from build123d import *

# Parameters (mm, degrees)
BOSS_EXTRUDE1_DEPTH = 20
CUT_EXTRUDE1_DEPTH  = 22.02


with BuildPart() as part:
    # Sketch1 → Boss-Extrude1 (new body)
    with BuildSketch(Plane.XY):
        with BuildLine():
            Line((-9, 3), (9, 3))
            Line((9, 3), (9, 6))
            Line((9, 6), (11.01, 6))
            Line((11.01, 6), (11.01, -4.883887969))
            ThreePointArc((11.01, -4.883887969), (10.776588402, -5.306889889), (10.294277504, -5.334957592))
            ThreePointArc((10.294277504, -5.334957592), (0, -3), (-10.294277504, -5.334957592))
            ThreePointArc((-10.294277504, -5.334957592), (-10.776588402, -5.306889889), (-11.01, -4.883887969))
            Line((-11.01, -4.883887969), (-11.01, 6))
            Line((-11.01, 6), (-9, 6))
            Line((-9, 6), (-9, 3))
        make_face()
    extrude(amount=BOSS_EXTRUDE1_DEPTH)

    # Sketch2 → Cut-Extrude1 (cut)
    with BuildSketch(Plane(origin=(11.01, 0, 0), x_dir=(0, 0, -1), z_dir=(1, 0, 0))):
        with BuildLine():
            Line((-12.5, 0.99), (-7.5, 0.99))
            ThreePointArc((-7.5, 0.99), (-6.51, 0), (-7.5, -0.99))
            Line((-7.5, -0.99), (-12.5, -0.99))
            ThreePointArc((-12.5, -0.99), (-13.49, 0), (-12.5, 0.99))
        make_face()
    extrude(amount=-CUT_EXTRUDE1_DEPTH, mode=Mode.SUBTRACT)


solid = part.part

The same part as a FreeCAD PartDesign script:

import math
import FreeCAD as App
import Part
import Sketcher

V = App.Vector

doc = App.newDocument("Part")
params = doc.addObject("Spreadsheet::Sheet", "Params")
for row, (alias, value) in enumerate([
    ("sketch1_radius", "0.5 mm"),
    ("sketch1_width", "18 mm"),
    ("sketch1_height", "3 mm"),
    ("sketch1_radius2", "23.86 mm"),
    ("sketch1_width2", "2.01 mm"),
    ("pad1_length", "20 mm"),
    ("sketch2_height", "5 mm"),
    ("sketch2_radius", "0.99 mm"),
    ("pocket1_length", "22.02 mm"),
], start=1):
    params.set(f"A{row}", alias)
    params.set(f"B{row}", "=" + value)
    params.setAlias(f"B{row}", alias)

body = doc.addObject("PartDesign::Body", "Body")

sketch1 = doc.addObject("Sketcher::SketchObject", "Sketch")
body.addObject(sketch1)
sketch1.AttachmentSupport = (doc.XY_Plane, [""])
sketch1.MapMode = "FlatFace"
sketch1.addGeometry([
    Part.LineSegment(V(9, 3, 0), V(-9, 3, 0)),
    Part.LineSegment(V(-9, 3, 0), V(-9, 6, 0)),
    Part.LineSegment(V(-9, 6, 0), V(-11, 6, 0)),
    Part.LineSegment(V(-11, 6, 0), V(-11, -4.9, 0)),
    Part.ArcOfCircle(Part.Circle(V(-10.5, -4.9, 0), V(0, 0, 1), 0.5), math.radians(180), math.radians(296)),
    Part.ArcOfCircle(Part.Circle(V(0, -26.9, 0), V(0, 0, 1), 23.9), math.radians(64), math.radians(116)),
    Part.ArcOfCircle(Part.Circle(V(10.5, -4.9, 0), V(0, 0, 1), 0.5), math.radians(-116), math.radians(0)),
    Part.LineSegment(V(11, -4.9, 0), V(11, 6, 0)),
    Part.LineSegment(V(11, 6, 0), V(9, 6, 0)),
    Part.LineSegment(V(9, 6, 0), V(9, 3, 0)),
], False)
sketch1.addConstraint([
    Sketcher.Constraint("Coincident", 0, 2, 1, 1),
    Sketcher.Constraint("Coincident", 1, 2, 2, 1),
    Sketcher.Constraint("Coincident", 2, 2, 3, 1),
    Sketcher.Constraint("Tangent", 3, 2, 4, 1),
    Sketcher.Constraint("Tangent", 4, 2, 5, 2),
    Sketcher.Constraint("Tangent", 5, 1, 6, 1),
    Sketcher.Constraint("Tangent", 6, 2, 7, 1),
    Sketcher.Constraint("Coincident", 7, 2, 8, 1),
    Sketcher.Constraint("Coincident", 8, 2, 9, 1),
    Sketcher.Constraint("Coincident", 9, 2, 0, 1),
    Sketcher.Constraint("Horizontal", 0),
    Sketcher.Constraint("Vertical", 1),
    Sketcher.Constraint("Horizontal", 2),
    Sketcher.Constraint("Vertical", 3),
    Sketcher.Constraint("Vertical", 7),
    Sketcher.Constraint("Horizontal", 8),
    Sketcher.Constraint("Vertical", 9),
    Sketcher.Constraint("Equal", 4, 6),
    Sketcher.Constraint("Symmetric", 4, 3, 6, 3, -2),
    Sketcher.Constraint("Symmetric", 1, 2, 8, 2, -2),
    Sketcher.Constraint("Radius", 4, 0.5),
    Sketcher.Constraint("DistanceX", 0, 2, 0, 1, 18.0),
    Sketcher.Constraint("DistanceY", 1, 1, 1, 2, 3.0),
    Sketcher.Constraint("Radius", 5, 23.86),
    Sketcher.Constraint("DistanceY", -1, 1, 0, 2, 3.0),
    Sketcher.Constraint("DistanceX", 2, 2, 2, 1, 2.01),
    Sketcher.Constraint("DistanceY", 5, 3, -1, 1, 26.86),
])
sketch1.setExpression("Constraints[20]", "Params.sketch1_radius")
sketch1.setExpression("Constraints[21]", "Params.sketch1_width")
sketch1.setExpression("Constraints[22]", "Params.sketch1_height")
sketch1.setExpression("Constraints[23]", "Params.sketch1_radius2")
sketch1.setExpression("Constraints[25]", "Params.sketch1_width2")
pad1 = doc.addObject("PartDesign::Pad", "Pad")
body.addObject(pad1)
pad1.Profile = sketch1
pad1.setExpression("Length", "Params.pad1_length")

sketch2 = doc.addObject("Sketcher::SketchObject", "Sketch001")
body.addObject(sketch2)
sketch2.AttachmentSupport = (doc.YZ_Plane, [""])
sketch2.MapMode = "FlatFace"
sketch2.AttachmentOffset = App.Placement(V(0, 0, 11.01), App.Rotation())
sketch2.addGeometry([
    Part.LineSegment(V(1, 7.5, 0), V(1, 12.5, 0)),
    Part.ArcOfCircle(Part.Circle(V(0, 12.5, 0), V(0, 0, 1), 1), math.radians(0), math.radians(180)),
    Part.LineSegment(V(-1, 12.5, 0), V(-1, 7.5, 0)),
    Part.ArcOfCircle(Part.Circle(V(0, 7.5, 0), V(0, 0, 1), 1), math.radians(180), math.radians(360)),
], False)
sketch2.addConstraint([
    Sketcher.Constraint("Tangent", 0, 2, 1, 1),
    Sketcher.Constraint("Tangent", 1, 2, 2, 1),
    Sketcher.Constraint("Tangent", 2, 2, 3, 1),
    Sketcher.Constraint("Tangent", 3, 2, 0, 1),
    Sketcher.Constraint("Vertical", 0),
    Sketcher.Constraint("Vertical", 2),
    Sketcher.Constraint("PointOnObject", 1, 3, -2),
    Sketcher.Constraint("DistanceY", 0, 1, 0, 2, 5.0),
    Sketcher.Constraint("Radius", 1, 0.99),
    Sketcher.Constraint("DistanceY", -1, 1, 1, 3, 12.5),
])
sketch2.setExpression("Constraints[7]", "Params.sketch2_height")
sketch2.setExpression("Constraints[8]", "Params.sketch2_radius")
pocket1 = doc.addObject("PartDesign::Pocket", "Pocket")
body.addObject(pocket1)
pocket1.Profile = sketch2
pocket1.setExpression("Length", "Params.pocket1_length")

doc.recompute()
